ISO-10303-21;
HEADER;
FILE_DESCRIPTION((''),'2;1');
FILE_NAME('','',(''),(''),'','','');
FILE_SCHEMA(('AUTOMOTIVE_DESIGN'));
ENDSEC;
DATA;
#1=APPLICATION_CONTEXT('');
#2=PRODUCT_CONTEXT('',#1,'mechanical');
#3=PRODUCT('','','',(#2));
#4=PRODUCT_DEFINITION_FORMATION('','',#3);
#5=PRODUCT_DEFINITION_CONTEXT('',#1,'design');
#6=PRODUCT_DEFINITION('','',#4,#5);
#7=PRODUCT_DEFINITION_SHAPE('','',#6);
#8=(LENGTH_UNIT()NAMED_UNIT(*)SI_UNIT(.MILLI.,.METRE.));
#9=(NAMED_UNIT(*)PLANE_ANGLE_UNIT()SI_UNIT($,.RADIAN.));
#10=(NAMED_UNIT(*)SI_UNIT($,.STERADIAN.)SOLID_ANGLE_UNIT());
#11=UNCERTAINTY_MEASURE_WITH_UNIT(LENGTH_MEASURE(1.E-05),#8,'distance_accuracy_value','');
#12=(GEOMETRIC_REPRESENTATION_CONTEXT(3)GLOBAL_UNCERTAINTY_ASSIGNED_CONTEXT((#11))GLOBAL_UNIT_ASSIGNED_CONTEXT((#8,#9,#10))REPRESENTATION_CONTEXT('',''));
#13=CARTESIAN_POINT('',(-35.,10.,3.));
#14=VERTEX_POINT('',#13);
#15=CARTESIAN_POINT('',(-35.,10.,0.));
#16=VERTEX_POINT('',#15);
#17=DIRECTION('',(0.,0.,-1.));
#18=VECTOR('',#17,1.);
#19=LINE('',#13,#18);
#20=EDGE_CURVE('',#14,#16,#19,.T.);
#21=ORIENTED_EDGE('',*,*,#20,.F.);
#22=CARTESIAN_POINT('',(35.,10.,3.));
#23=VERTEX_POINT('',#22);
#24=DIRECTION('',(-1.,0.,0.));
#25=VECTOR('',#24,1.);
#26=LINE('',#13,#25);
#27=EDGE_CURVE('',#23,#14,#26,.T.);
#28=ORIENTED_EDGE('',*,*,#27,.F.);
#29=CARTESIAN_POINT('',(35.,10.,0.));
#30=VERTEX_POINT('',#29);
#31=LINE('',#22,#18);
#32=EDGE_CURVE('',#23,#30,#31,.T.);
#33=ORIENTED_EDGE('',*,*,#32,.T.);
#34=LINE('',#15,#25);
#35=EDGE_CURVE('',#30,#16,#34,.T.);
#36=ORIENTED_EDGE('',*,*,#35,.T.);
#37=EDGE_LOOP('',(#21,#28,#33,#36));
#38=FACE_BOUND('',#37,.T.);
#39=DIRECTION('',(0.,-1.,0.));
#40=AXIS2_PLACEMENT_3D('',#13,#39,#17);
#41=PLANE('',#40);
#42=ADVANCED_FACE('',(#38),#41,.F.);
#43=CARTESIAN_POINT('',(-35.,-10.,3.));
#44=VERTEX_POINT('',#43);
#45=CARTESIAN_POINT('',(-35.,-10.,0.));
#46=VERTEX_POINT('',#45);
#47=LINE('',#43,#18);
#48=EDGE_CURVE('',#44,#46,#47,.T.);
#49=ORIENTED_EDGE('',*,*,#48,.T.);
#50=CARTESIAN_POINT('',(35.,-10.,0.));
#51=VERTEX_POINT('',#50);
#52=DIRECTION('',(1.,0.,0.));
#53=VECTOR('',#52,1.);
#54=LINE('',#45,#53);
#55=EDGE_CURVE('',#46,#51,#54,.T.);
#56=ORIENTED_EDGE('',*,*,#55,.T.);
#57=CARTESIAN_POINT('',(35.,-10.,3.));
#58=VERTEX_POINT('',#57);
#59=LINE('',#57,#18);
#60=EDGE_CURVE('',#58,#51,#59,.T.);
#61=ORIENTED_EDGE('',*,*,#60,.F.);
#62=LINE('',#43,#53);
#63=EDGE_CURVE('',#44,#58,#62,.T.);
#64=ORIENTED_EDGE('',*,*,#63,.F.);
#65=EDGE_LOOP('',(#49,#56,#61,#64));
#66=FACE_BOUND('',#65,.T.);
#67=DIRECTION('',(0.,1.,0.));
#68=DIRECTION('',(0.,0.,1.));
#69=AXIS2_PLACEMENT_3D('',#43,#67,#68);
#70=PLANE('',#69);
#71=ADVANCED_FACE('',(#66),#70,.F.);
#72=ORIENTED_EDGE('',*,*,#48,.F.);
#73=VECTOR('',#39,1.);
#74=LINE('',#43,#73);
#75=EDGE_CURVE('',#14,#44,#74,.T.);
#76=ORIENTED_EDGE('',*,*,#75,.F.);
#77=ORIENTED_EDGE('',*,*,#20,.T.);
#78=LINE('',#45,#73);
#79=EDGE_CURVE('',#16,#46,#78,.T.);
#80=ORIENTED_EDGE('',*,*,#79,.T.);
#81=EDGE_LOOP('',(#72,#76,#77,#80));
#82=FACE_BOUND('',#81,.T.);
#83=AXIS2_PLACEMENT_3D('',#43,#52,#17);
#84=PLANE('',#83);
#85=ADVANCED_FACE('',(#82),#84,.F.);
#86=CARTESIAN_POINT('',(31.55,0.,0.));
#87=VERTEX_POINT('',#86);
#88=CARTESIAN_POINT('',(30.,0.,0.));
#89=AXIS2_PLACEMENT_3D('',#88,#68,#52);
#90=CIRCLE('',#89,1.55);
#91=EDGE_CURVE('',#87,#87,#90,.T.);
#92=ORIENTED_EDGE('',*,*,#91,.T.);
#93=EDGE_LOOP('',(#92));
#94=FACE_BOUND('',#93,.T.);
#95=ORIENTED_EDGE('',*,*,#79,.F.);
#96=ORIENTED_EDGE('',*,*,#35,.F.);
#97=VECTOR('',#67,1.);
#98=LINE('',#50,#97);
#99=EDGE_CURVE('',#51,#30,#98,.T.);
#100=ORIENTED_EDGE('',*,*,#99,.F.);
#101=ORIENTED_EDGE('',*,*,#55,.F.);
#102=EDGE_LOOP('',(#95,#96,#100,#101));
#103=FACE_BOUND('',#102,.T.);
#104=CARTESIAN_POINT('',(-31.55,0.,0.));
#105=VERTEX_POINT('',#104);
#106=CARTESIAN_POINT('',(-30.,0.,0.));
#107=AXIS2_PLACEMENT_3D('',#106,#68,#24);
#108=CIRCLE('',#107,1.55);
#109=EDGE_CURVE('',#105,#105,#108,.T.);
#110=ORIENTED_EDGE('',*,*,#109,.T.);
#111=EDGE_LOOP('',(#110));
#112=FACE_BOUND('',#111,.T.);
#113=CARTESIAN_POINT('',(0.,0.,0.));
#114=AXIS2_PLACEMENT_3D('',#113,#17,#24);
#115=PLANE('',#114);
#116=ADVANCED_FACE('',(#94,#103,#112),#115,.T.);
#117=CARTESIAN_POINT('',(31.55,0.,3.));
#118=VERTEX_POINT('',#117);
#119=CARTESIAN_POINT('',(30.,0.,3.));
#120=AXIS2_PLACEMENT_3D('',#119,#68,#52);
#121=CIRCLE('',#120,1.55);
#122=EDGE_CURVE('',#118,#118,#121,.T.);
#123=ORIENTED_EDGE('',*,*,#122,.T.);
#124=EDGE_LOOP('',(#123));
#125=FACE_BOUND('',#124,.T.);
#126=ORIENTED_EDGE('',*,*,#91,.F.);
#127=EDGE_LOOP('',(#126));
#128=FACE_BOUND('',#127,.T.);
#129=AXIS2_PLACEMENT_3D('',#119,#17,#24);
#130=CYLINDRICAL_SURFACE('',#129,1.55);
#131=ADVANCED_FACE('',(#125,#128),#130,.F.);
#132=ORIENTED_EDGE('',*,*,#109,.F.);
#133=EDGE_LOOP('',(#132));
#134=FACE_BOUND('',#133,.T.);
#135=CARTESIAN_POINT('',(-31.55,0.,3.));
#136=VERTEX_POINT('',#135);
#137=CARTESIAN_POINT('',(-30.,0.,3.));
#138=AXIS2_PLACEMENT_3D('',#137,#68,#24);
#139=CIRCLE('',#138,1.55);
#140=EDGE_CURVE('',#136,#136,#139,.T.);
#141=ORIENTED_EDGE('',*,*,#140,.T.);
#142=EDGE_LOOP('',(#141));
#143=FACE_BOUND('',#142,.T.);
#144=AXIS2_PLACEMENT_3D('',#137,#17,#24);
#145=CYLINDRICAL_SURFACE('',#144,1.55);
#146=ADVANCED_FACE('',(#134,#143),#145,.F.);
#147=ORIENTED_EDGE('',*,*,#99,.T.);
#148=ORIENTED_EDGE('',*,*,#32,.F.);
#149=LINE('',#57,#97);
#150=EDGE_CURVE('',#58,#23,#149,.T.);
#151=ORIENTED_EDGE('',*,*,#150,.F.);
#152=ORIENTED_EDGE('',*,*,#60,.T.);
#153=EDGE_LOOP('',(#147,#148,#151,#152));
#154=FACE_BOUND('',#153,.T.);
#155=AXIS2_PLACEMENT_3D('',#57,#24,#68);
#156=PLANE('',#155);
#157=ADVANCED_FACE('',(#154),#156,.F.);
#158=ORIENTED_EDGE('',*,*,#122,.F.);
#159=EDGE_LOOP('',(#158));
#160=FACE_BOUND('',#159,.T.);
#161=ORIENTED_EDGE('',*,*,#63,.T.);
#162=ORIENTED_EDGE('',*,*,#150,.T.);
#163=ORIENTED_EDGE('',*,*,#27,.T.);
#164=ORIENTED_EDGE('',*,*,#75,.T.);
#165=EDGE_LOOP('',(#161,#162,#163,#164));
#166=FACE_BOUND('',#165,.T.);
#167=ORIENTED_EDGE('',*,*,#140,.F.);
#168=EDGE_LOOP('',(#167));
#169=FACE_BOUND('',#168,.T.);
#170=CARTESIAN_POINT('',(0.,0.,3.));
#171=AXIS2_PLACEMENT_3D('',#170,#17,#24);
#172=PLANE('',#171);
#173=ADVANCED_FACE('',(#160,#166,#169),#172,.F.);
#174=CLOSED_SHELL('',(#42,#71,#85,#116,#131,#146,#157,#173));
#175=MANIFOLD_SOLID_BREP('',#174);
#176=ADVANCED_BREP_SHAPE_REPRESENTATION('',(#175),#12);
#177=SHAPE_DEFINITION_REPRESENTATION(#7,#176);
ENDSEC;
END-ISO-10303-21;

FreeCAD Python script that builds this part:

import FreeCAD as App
import Part
import Sketcher
from FreeCAD import Vector
Q = App.Units.Quantity

doc = App.newDocument("Part")
body = doc.addObject("PartDesign::Body", "Body")

sketch1 = doc.addObject("Sketcher::SketchObject", "Sketch")
body.addObject(sketch1)
sketch1.AttachmentSupport = (doc.XY_Plane, [""])
sketch1.MapMode = "FlatFace"
sketch1.addGeometry([
    Part.LineSegment(Vector(-35, 10, 0), Vector(-35, -10, 0)),
    Part.LineSegment(Vector(-35, -10, 0), Vector(35, -10, 0)),
    Part.LineSegment(Vector(35, -10, 0), Vector(35, 10, 0)),
    Part.LineSegment(Vector(35, 10, 0), Vector(-35, 10, 0)),
    Part.Circle(Vector(-30, 0, 0), Vector(0, 0, 1), 1.6),
    Part.Circle(Vector(30, 0, 0), Vector(0, 0, 1), 1.6),
], False)
sketch1.addConstraint([
    Sketcher.Constraint("Coincident", 0, 2, 1, 1),
    Sketcher.Constraint("Coincident", 1, 2, 2, 1),
    Sketcher.Constraint("Coincident", 2, 2, 3, 1),
    Sketcher.Constraint("Coincident", 3, 2, 0, 1),
    Sketcher.Constraint("Vertical", 0),
    Sketcher.Constraint("Horizontal", 1),
    Sketcher.Constraint("Vertical", 2),
    Sketcher.Constraint("Horizontal", 3),
    Sketcher.Constraint("Equal", 4, 5),
    Sketcher.Constraint("Symmetric", 4, 3, 5, 3, -1, 1),
    Sketcher.Constraint("Symmetric", 0, 2, 2, 2, -1, 1),
    Sketcher.Constraint("PointOnObject", 4, 3, -1),
    Sketcher.Constraint("Diameter", 4, Q("3.1 mm")),
    Sketcher.Constraint("DistanceX", 1, 1, 1, 2, Q("70 mm")),
    Sketcher.Constraint("DistanceY", 0, 2, 0, 1, Q("20 mm")),
    Sketcher.Constraint("DistanceX", 4, 3, -1, 1, Q("30 mm")),
])
pad1 = doc.addObject("PartDesign::Pad", "Pad")
body.addObject(pad1)
pad1.Profile = sketch1
pad1.Length = 3

doc.recompute()
